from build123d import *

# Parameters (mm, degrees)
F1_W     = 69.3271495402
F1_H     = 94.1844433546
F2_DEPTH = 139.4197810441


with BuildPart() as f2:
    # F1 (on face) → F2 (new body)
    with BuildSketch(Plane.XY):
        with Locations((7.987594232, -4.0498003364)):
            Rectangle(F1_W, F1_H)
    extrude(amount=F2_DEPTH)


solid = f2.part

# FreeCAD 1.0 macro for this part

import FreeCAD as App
import Part
import Sketcher

V = App.Vector


def add_polygon(sketch, points):
    """Adds a closed chain of lines whose ends are joined by coincident constraints."""
    first, n = sketch.GeometryCount, len(points)
    for a, b in zip(points, points[1:] + points[:1]):
        sketch.addGeometry(Part.LineSegment(App.Vector(*a, 0), App.Vector(*b, 0)), False)
    for i in range(n):
        sketch.addConstraint(Sketcher.Constraint("Coincident", first + i, 2, first + (i + 1) % n, 1))

doc = App.newDocument("Part")
params = doc.addObject("Spreadsheet::Sheet", "Params")
for row, (alias, value) in enumerate([
    ("pad1_length", "139.419781 mm"),
], start=1):
    params.set(f"A{row}", alias)
    params.set(f"B{row}", "=" + value)
    params.setAlias(f"B{row}", alias)

body = doc.addObject("PartDesign::Body", "Body")

sketch1 = body.newObject("Sketcher::SketchObject", "Sketch")
sketch1.AttachmentSupport = (doc.getObject("XY_Plane"), [""])
sketch1.MapMode = "FlatFace"
add_polygon(sketch1, [(-26.675981, 43.042421), (-26.675981, -51.142022), (42.651169, -51.142022), (42.651169, 43.042421)])
sketch1.addConstraint(Sketcher.Constraint("Vertical", 0))
sketch1.addConstraint(Sketcher.Constraint("Horizontal", 1))
sketch1.addConstraint(Sketcher.Constraint("Vertical", 2))
sketch1.addConstraint(Sketcher.Constraint("Horizontal", 3))
sketch1.addConstraint(Sketcher.Constraint("DistanceX", 1, 1, 1, 2, 69.32715))
sketch1.addConstraint(Sketcher.Constraint("DistanceY", 0, 2, 0, 1, 94.184443))
sketch1.addConstraint(Sketcher.Constraint("DistanceX", 0, 2, -1, 1, 26.675981))
sketch1.addConstraint(Sketcher.Constraint("DistanceY", -1, 1, 2, 2, 43.042421))
pad1 = body.newObject("PartDesign::Pad", "Pad")
pad1.Profile = sketch1
pad1.setExpression("Length", "Params.pad1_length")

doc.recompute()
